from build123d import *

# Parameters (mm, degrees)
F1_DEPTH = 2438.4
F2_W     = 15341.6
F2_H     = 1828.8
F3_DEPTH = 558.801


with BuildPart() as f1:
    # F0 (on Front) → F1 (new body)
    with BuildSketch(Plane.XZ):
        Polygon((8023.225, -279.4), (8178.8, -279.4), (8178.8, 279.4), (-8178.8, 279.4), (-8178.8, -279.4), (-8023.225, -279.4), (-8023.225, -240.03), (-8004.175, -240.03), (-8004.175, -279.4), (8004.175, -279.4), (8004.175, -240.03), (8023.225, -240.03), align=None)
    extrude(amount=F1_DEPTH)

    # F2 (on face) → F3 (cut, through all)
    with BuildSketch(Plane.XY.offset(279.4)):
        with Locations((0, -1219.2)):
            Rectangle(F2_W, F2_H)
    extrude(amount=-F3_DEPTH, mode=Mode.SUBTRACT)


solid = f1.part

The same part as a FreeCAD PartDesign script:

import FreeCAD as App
import Part
import Sketcher
Q = App.Units.Quantity

doc = App.newDocument("Part")
body = doc.addObject("PartDesign::Body", "Body")

# Sketch on XZ plane
sketch1 = doc.addObject("Sketcher::SketchObject", "Sketch")
body.addObject(sketch1)
sketch1.AttachmentSupport = (doc.XZ_Plane, [""])
sketch1.MapMode = "FlatFace"
sketch1.addGeometry([
    Part.LineSegment(App.Vector(8023, -279, 0), App.Vector(8179, -279, 0)),  # 0
    Part.LineSegment(App.Vector(8179, -279, 0), App.Vector(8179, 279, 0)),  # 1
    Part.LineSegment(App.Vector(8179, 279, 0), App.Vector(-8179, 279, 0)),  # 2
    Part.LineSegment(App.Vector(-8179, 279, 0), App.Vector(-8179, -279, 0)),  # 3
    Part.LineSegment(App.Vector(-8179, -279, 0), App.Vector(-8023, -279, 0)),  # 4
    Part.LineSegment(App.Vector(-8023, -279, 0), App.Vector(-8023, -240, 0)),  # 5
    Part.LineSegment(App.Vector(-8023, -240, 0), App.Vector(-8004, -240, 0)),  # 6
    Part.LineSegment(App.Vector(-8004, -240, 0), App.Vector(-8004, -279, 0)),  # 7
    Part.LineSegment(App.Vector(-8004, -279, 0), App.Vector(8004, -279, 0)),  # 8
    Part.LineSegment(App.Vector(8004, -279, 0), App.Vector(8004, -240, 0)),  # 9
    Part.LineSegment(App.Vector(8004, -240, 0), App.Vector(8023, -240, 0)),  # 10
    Part.LineSegment(App.Vector(8023, -240, 0), App.Vector(8023, -279, 0)),  # 11
], False)
sketch1.addConstraint([
    Sketcher.Constraint("Coincident", 0, 2, 1, 1),
    Sketcher.Constraint("Coincident", 1, 2, 2, 1),
    Sketcher.Constraint("Coincident", 2, 2, 3, 1),
    Sketcher.Constraint("Coincident", 3, 2, 4, 1),
    Sketcher.Constraint("Coincident", 4, 2, 5, 1),
    Sketcher.Constraint("Coincident", 5, 2, 6, 1),
    Sketcher.Constraint("Coincident", 6, 2, 7, 1),
    Sketcher.Constraint("Coincident", 7, 2, 8, 1),
    Sketcher.Constraint("Coincident", 8, 2, 9, 1),
    Sketcher.Constraint("Coincident", 9, 2, 10, 1),
    Sketcher.Constraint("Coincident", 10, 2, 11, 1),
    Sketcher.Constraint("Coincident", 11, 2, 0, 1),
    Sketcher.Constraint("Horizontal", 0),
    Sketcher.Constraint("Vertical", 1),
    Sketcher.Constraint("Horizontal", 2),
    Sketcher.Constraint("Vertical", 3),
    Sketcher.Constraint("Horizontal", 4),
    Sketcher.Constraint("Vertical", 5),
    Sketcher.Constraint("Horizontal", 6),
    Sketcher.Constraint("Vertical", 7),
    Sketcher.Constraint("Horizontal", 8),
    Sketcher.Constraint("Vertical", 9),
    Sketcher.Constraint("Horizontal", 10),
    Sketcher.Constraint("Vertical", 11),
    Sketcher.Constraint("Symmetric", 0, 2, 2, 2, -1, 1),
    Sketcher.Constraint("Symmetric", 6, 2, 9, 2, -2),
    Sketcher.Constraint("Symmetric", 4, 2, 11, 2, -2),
    Sketcher.Constraint("Horizontal", 4, 2, 7, 2),
    Sketcher.Constraint("DistanceX", 2, 2, 2, 1, Q("644 in")),
    Sketcher.Constraint("DistanceY", 1, 1, 1, 2, Q("22 in")),
    Sketcher.Constraint("DistanceX", 4, 2, 8, 2, Q("631 in")),
    Sketcher.Constraint("DistanceX", 6, 1, 6, 2, Q("0.75 in")),
    Sketcher.Constraint("DistanceY", 5, 1, 5, 2, Q("1.55 in")),
])
pad1 = doc.addObject("PartDesign::Pad", "Pad")
body.addObject(pad1)
pad1.Profile = sketch1
pad1.Length = Q("96 in")

# Sketch on XY plane
sketch2 = doc.addObject("Sketcher::SketchObject", "Sketch001")
body.addObject(sketch2)
sketch2.AttachmentSupport = (doc.XY_Plane, [""])
sketch2.MapMode = "FlatFace"
sketch2.AttachmentOffset = App.Placement(App.Vector(0, 0, 11 * 25.4), App.Rotation())
sketch2.addGeometry([
    Part.LineSegment(App.Vector(-7671, -305, 0), App.Vector(-7671, -2134, 0)),
    Part.LineSegment(App.Vector(-7671, -2134, 0), App.Vector(7671, -2134, 0)),
    Part.LineSegment(App.Vector(7671, -2134, 0), App.Vector(7671, -305, 0)),
    Part.LineSegment(App.Vector(7671, -305, 0), App.Vector(-7671, -305, 0)),
], False)
sketch2.addConstraint([
    Sketcher.Constraint("Coincident", 0, 2, 1, 1),
    Sketcher.Constraint("Coincident", 1, 2, 2, 1),
    Sketcher.Constraint("Coincident", 2, 2, 3, 1),
    Sketcher.Constraint("Coincident", 3, 2, 0, 1),
    Sketcher.Constraint("Vertical", 0),
    Sketcher.Constraint("Horizontal", 1),
    Sketcher.Constraint("Vertical", 2),
    Sketcher.Constraint("Horizontal", 3),
    Sketcher.Constraint("DistanceX", 1, 1, 1, 2, Q("604 in")),
    Sketcher.Constraint("DistanceY", 0, 2, 0, 1, Q("72 in")),
    Sketcher.Constraint("DistanceX", 0, 2, -1, 1, Q("302 in")),
    Sketcher.Constraint("DistanceY", 0, 2, -1, 1, Q("84 in")),
])
pocket1 = doc.addObject("PartDesign::Pocket", "Pocket")
body.addObject(pocket1)
pocket1.Profile = sketch2
pocket1.Type = "ThroughAll"

doc.recompute()
